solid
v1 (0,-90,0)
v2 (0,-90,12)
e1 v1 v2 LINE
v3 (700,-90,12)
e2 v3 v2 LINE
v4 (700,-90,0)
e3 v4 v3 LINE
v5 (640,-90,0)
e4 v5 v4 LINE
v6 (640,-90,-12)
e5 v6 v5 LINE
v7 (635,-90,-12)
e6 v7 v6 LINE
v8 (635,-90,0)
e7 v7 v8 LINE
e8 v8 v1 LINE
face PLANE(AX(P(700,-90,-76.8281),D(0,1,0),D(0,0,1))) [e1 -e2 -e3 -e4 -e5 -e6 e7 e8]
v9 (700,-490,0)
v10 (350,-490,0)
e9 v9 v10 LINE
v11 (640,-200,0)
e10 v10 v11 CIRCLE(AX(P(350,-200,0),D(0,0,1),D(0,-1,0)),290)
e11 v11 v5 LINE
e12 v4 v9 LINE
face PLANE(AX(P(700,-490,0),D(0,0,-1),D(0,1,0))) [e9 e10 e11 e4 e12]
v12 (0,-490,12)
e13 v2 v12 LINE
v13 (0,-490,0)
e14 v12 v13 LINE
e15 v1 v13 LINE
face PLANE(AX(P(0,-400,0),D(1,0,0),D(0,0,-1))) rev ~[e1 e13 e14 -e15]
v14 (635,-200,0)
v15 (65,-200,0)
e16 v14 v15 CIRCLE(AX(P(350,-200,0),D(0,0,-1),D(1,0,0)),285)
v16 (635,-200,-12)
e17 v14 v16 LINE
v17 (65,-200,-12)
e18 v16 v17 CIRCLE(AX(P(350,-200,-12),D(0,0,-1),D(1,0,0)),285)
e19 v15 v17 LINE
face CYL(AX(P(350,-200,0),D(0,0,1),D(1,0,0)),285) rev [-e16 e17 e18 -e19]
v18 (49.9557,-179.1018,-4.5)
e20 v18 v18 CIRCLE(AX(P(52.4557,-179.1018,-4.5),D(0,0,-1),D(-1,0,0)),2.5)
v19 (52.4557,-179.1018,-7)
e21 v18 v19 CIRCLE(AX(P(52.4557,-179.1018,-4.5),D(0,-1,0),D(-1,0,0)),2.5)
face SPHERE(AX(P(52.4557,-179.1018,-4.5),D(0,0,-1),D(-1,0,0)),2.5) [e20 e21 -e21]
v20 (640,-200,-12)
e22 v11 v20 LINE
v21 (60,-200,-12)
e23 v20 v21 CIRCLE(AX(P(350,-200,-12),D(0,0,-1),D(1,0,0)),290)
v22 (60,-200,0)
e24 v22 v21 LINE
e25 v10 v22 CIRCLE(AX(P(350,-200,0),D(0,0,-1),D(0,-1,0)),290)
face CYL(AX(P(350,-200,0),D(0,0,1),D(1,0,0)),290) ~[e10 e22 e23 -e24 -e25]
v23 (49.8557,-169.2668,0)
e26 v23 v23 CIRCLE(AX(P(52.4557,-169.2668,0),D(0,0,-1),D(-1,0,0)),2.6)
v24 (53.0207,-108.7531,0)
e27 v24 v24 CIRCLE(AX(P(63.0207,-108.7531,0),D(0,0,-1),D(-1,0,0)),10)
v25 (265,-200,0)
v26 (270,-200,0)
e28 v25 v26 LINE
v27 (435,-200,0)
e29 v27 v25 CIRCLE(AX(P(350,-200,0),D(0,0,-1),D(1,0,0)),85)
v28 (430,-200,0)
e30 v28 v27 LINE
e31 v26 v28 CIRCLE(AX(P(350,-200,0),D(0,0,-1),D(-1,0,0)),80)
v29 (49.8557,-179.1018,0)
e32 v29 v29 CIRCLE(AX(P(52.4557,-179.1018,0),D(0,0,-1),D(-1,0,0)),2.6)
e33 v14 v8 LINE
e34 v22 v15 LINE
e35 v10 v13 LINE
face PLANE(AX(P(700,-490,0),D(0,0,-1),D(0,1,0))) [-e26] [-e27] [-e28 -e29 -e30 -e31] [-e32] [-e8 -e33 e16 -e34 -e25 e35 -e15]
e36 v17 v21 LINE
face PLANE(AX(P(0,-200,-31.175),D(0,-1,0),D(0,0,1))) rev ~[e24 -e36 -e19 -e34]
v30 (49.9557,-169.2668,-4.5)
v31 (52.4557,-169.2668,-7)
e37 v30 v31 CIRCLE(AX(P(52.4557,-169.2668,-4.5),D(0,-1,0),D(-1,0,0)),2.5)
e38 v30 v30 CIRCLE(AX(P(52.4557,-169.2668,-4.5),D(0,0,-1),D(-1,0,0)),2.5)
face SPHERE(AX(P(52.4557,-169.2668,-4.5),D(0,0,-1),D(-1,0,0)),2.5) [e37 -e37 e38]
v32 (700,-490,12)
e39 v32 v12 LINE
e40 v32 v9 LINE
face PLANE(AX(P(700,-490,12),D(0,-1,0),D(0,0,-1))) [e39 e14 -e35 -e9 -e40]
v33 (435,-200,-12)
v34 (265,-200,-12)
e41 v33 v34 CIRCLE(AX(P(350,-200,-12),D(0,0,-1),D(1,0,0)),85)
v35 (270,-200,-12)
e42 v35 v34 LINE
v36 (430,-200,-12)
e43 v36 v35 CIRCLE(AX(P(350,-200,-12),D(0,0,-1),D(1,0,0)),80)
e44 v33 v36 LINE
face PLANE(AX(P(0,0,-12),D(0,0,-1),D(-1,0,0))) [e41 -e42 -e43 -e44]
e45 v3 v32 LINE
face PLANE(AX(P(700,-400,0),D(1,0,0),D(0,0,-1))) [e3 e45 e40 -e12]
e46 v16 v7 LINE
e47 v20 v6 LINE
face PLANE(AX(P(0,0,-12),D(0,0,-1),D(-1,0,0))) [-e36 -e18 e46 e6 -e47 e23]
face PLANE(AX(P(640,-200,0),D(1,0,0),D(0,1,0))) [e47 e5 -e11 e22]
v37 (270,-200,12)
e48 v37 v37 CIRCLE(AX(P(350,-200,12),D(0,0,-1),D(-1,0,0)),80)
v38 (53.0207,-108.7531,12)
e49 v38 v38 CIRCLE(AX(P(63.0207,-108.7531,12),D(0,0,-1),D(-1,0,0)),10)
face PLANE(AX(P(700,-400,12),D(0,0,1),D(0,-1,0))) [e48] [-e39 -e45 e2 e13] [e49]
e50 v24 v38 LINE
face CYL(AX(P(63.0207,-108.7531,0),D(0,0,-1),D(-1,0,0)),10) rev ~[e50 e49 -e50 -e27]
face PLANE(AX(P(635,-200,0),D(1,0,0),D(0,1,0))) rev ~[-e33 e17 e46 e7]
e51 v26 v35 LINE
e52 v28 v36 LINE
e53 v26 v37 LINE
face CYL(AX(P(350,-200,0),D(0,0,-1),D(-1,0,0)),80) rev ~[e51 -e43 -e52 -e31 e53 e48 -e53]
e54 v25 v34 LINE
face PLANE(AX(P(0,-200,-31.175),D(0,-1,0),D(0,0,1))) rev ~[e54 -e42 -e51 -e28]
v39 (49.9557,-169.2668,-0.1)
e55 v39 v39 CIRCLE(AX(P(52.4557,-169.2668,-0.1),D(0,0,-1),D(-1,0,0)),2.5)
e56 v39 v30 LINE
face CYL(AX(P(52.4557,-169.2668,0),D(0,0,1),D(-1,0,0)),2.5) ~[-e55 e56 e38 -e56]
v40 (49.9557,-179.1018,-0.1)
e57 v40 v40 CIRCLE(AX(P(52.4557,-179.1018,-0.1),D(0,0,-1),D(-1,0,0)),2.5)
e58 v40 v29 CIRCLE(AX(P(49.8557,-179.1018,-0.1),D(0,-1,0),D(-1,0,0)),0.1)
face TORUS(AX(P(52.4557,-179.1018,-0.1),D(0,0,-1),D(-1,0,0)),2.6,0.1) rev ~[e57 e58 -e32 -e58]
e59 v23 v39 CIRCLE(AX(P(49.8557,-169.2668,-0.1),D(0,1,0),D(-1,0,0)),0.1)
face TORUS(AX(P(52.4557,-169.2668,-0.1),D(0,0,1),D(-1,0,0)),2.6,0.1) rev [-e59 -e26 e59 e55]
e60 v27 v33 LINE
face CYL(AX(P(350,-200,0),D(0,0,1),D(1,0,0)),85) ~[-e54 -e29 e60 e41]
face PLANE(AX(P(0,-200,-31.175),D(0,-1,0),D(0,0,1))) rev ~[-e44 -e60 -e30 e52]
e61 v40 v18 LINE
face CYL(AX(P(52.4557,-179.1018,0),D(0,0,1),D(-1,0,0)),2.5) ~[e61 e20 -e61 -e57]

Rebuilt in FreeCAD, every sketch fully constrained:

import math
import FreeCAD as App
import Part
import Sketcher

V = App.Vector
Q = App.Units.Quantity


def edges_at(feature, points):
    """Names of the edges that pass closest to the given points."""
    edges = feature.Shape.Edges
    near = lambda p: min(range(len(edges)), key=lambda i: edges[i].distToShape(Part.Vertex(*p))[0])
    return sorted({f"Edge{near(p) + 1}" for p in points})


def add_polygon(sketch, points):
    """Adds a closed chain of lines whose ends are joined by coincident constraints."""
    first, n = sketch.GeometryCount, len(points)
    for a, b in zip(points, points[1:] + points[:1]):
        sketch.addGeometry(Part.LineSegment(App.Vector(*a, 0), App.Vector(*b, 0)), False)
    for i in range(n):
        sketch.addConstraint(Sketcher.Constraint("Coincident", first + i, 2, first + (i + 1) % n, 1))

doc = App.newDocument("Part")
body = doc.addObject("PartDesign::Body", "Body")

# Sketch on XY plane
sketch1 = doc.addObject("Sketcher::SketchObject", "Sketch")
body.addObject(sketch1)
sketch1.AttachmentSupport = (doc.XY_Plane, [""])
sketch1.MapMode = "FlatFace"
add_polygon(sketch1, [(700, 0), (0, 0), (0, -400), (700, -400)])  # lines 0-3
sketch1.addConstraint([
    Sketcher.Constraint("Horizontal", 0),
    Sketcher.Constraint("Vertical", 1),
    Sketcher.Constraint("Horizontal", 2),
    Sketcher.Constraint("Vertical", 3),
    Sketcher.Constraint("Coincident", 0, 2, -1, 1),
    Sketcher.Constraint("DistanceX", 0, 2, 0, 1, Q("700 mm")),
    Sketcher.Constraint("DistanceY", 1, 2, 1, 1, Q("400 mm")),
])
pad1 = doc.addObject("PartDesign::Pad", "Pad")
body.addObject(pad1)
pad1.Profile = sketch1
pad1.Length = 12

# Sketch on XY plane
sketch2 = doc.addObject("Sketcher::SketchObject", "Sketch001")
body.addObject(sketch2)
sketch2.AttachmentSupport = (doc.XY_Plane, [""])
sketch2.MapMode = "FlatFace"
sketch2.addGeometry(Part.Circle(V(350, -200, 0), V(0, 0, 1), 80), False)
sketch2.addConstraint([
    Sketcher.Constraint("Diameter", 0, Q("160 mm")),
    Sketcher.Constraint("DistanceX", -1, 1, 0, 3, Q("350 mm")),
    Sketcher.Constraint("DistanceY", 0, 3, -1, 1, Q("200 mm")),
])
pocket1 = doc.addObject("PartDesign::Pocket", "Pocket")
body.addObject(pocket1)
pocket1.Profile = sketch2
pocket1.Length = 12
pocket1.Reversed = True

# Sketch on XY plane
sketch3 = doc.addObject("Sketcher::SketchObject", "Sketch002")
body.addObject(sketch3)
sketch3.AttachmentSupport = (doc.XY_Plane, [""])
sketch3.MapMode = "FlatFace"
sketch3.addGeometry([
    Part.ArcOfCircle(Part.Circle(V(350, -200, 0), V(0, 0, 1), 80), math.radians(180), math.radians(360)),  # 0
    Part.LineSegment(V(430, -200, 0), V(430, 0, 0)),  # 1
    Part.LineSegment(V(430, 0, 0), V(435, 0, 0)),  # 2
    Part.LineSegment(V(435, 0, 0), V(435, -200, 0)),  # 3
    Part.ArcOfCircle(Part.Circle(V(350, -200, 0), V(0, 0, 1), 85), math.radians(180), math.radians(360)),  # 4
    Part.LineSegment(V(265, -200, 0), V(265, 0, 0)),  # 5
    Part.LineSegment(V(265, 0, 0), V(270, 0, 0)),  # 6
    Part.LineSegment(V(270, 0, 0), V(270, -200, 0)),  # 7
    Part.LineSegment(V(635, -200, 0), V(635, 0, 0)),  # 8
    Part.LineSegment(V(635, 0, 0), V(640, 0, 0)),  # 9
    Part.LineSegment(V(640, 0, 0), V(640, -200, 0)),  # 10
    Part.ArcOfCircle(Part.Circle(V(350, -200, 0), V(0, 0, 1), 290), math.radians(180), math.radians(360)),  # 11
    Part.LineSegment(V(60, -200, 0), V(60, 0, 0)),  # 12
    Part.LineSegment(V(60, 0, 0), V(65, 0, 0)),  # 13
    Part.LineSegment(V(65, 0, 0), V(65, -200, 0)),  # 14
    Part.ArcOfCircle(Part.Circle(V(350, -200, 0), V(0, 0, 1), 285), math.radians(180), math.radians(360)),  # 15
], False)
sketch3.addConstraint([
    Sketcher.Constraint("Tangent", 0, 2, 1, 1),
    Sketcher.Constraint("Coincident", 1, 2, 2, 1),
    Sketcher.Constraint("Coincident", 2, 2, 3, 1),
    Sketcher.Constraint("Tangent", 3, 2, 4, 2),
    Sketcher.Constraint("Tangent", 4, 1, 5, 1),
    Sketcher.Constraint("Coincident", 5, 2, 6, 1),
    Sketcher.Constraint("Coincident", 6, 2, 7, 1),
    Sketcher.Constraint("Tangent", 7, 2, 0, 1),
    Sketcher.Constraint("Coincident", 8, 2, 9, 1),
    Sketcher.Constraint("Coincident", 9, 2, 10, 1),
    Sketcher.Constraint("Tangent", 10, 2, 11, 2),
    Sketcher.Constraint("Tangent", 11, 1, 12, 1),
    Sketcher.Constraint("Coincident", 12, 2, 13, 1),
    Sketcher.Constraint("Coincident", 13, 2, 14, 1),
    Sketcher.Constraint("Tangent", 14, 2, 15, 1),
    Sketcher.Constraint("Tangent", 15, 2, 8, 1),
    Sketcher.Constraint("Vertical", 1),
    Sketcher.Constraint("Horizontal", 2),
    Sketcher.Constraint("Vertical", 3),
    Sketcher.Constraint("Vertical", 5),
    Sketcher.Constraint("Horizontal", 6),
    Sketcher.Constraint("Vertical", 7),
    Sketcher.Constraint("Vertical", 8),
    Sketcher.Constraint("Horizontal", 9),
    Sketcher.Constraint("Vertical", 10),
    Sketcher.Constraint("Vertical", 12),
    Sketcher.Constraint("Horizontal", 13),
    Sketcher.Constraint("Vertical", 14),
    Sketcher.Constraint("Coincident", 4, 3, 0, 3),
    Sketcher.Constraint("Coincident", 11, 3, 0, 3),
    Sketcher.Constraint("Coincident", 15, 3, 0, 3),
    Sketcher.Constraint("PointOnObject", 1, 2, -1),
    Sketcher.Constraint("PointOnObject", 5, 2, -1),
    Sketcher.Constraint("PointOnObject", 8, 2, -1),
    Sketcher.Constraint("PointOnObject", 12, 2, -1),
    Sketcher.Constraint("Equal", 6, 9),
    Sketcher.Constraint("DistanceX", 2, 1, 2, 2, Q("5 mm")),
    Sketcher.Constraint("DistanceY", 1, 1, 1, 2, Q("200 mm")),
    Sketcher.Constraint("Radius", 0, Q("80 mm")),
    Sketcher.Constraint("Radius", 11, Q("290 mm")),
    Sketcher.Constraint("DistanceX", -1, 1, 0, 3, Q("350 mm")),
])
pad2 = doc.addObject("PartDesign::Pad", "Pad001")
body.addObject(pad2)
pad2.Profile = sketch3
pad2.Length = 12
pad2.Reversed = True

# Sketch on YZ plane
sketch4 = doc.addObject("Sketcher::SketchObject", "Sketch003")
body.addObject(sketch4)
sketch4.AttachmentSupport = (doc.YZ_Plane, [""])
sketch4.MapMode = "FlatFace"
sketch4.AttachmentOffset = App.Placement(V(0, 0, 700), App.Rotation())
add_polygon(sketch4, [(-490, 0), (-400, 0), (-400, 12), (-490, 12)])  # lines 0-3
sketch4.addConstraint([
    Sketcher.Constraint("Horizontal", 0),
    Sketcher.Constraint("Vertical", 1),
    Sketcher.Constraint("Horizontal", 2),
    Sketcher.Constraint("Vertical", 3),
    Sketcher.Constraint("PointOnObject", 0, 2, -1),
    Sketcher.Constraint("DistanceX", 0, 1, 0, 2, Q("90 mm")),
    Sketcher.Constraint("DistanceY", 1, 1, 1, 2, Q("12 mm")),
    Sketcher.Constraint("DistanceX", 0, 2, -1, 1, Q("400 mm")),
])
pad3 = doc.addObject("PartDesign::Pad", "Pad002")
body.addObject(pad3)
pad3.Profile = sketch4
pad3.Length = 700
pad3.Reversed = True

# Sketch on YZ plane
sketch5 = doc.addObject("Sketcher::SketchObject", "Sketch004")
body.addObject(sketch5)
sketch5.AttachmentSupport = (doc.YZ_Plane, [""])
sketch5.MapMode = "FlatFace"
sketch5.AttachmentOffset = App.Placement(V(0, 0, 700), App.Rotation())
add_polygon(sketch5, [(0, -77), (0, 12), (-90, 12), (-90, -77)])  # lines 0-3
sketch5.addConstraint([
    Sketcher.Constraint("Vertical", 0),
    Sketcher.Constraint("Horizontal", 1),
    Sketcher.Constraint("Vertical", 2),
    Sketcher.Constraint("Horizontal", 3),
    Sketcher.Constraint("PointOnObject", 0, 2, -2),
    Sketcher.Constraint("DistanceX", 1, 2, 1, 1, Q("90 mm")),
    Sketcher.Constraint("DistanceY", -1, 1, 0, 2, Q("12 mm")),
    Sketcher.Constraint("DistanceY", 0, 1, 0, 2, Q("88.828 mm")),
])
pocket2 = doc.addObject("PartDesign::Pocket", "Pocket001")
body.addObject(pocket2)
pocket2.Profile = sketch5
pocket2.Length = 10000

# Sketch on YZ plane
sketch6 = doc.addObject("Sketcher::SketchObject", "Sketch005")
body.addObject(sketch6)
sketch6.AttachmentSupport = (doc.YZ_Plane, [""])
sketch6.MapMode = "FlatFace"
add_polygon(sketch6, [(-200, -31), (-200, 0), (-90, 0), (-90, -31)])  # lines 0-3
sketch6.addConstraint([
    Sketcher.Constraint("Vertical", 0),
    Sketcher.Constraint("Horizontal", 1),
    Sketcher.Constraint("Vertical", 2),
    Sketcher.Constraint("Horizontal", 3),
    Sketcher.Constraint("PointOnObject", 0, 2, -1),
    Sketcher.Constraint("DistanceX", 1, 1, 1, 2, Q("110 mm")),
    Sketcher.Constraint("DistanceX", 0, 2, -1, 1, Q("200 mm")),
    Sketcher.Constraint("DistanceY", 0, 1, 0, 2, Q("31.175 mm")),
])
pocket3 = doc.addObject("PartDesign::Pocket", "Pocket002")
body.addObject(pocket3)
pocket3.Profile = sketch6
pocket3.Length = 500
pocket3.Reversed = True

# Sketch on XY plane
sketch7 = doc.addObject("Sketcher::SketchObject", "Sketch006")
body.addObject(sketch7)
sketch7.AttachmentSupport = (doc.XY_Plane, [""])
sketch7.MapMode = "FlatFace"
sketch7.addGeometry([
    Part.Circle(V(52.5, -179.1, 0), V(0, 0, 1), 2.5),
    Part.Circle(V(52.5, -169.3, 0), V(0, 0, 1), 2.5),
], False)
sketch7.addConstraint([
    Sketcher.Constraint("Equal", 0, 1),
    Sketcher.Constraint("Vertical", 0, 3, 1, 3),
    Sketcher.Constraint("Diameter", 0, Q("5 mm")),
    Sketcher.Constraint("DistanceY", 0, 3, 1, 3, Q("9.835 mm")),
    Sketcher.Constraint("DistanceX", -1, 1, 0, 3, Q("52.4557 mm")),
    Sketcher.Constraint("DistanceY", 0, 3, -1, 1, Q("179.1018 mm")),
])
pad4 = doc.addObject("PartDesign::Pad", "Pad003")
body.addObject(pad4)
pad4.Profile = sketch7
pad4.Length = 7
pad4.Reversed = True
doc.recompute()

fillet = doc.addObject("PartDesign::Fillet", "Fillet")
body.addObject(fillet)
fillet.Base = (pad4, edges_at(pad4, [(54.956, -169.267, -7), (54.956, -179.102, -7)]))
fillet.Radius = 2.5
doc.recompute()

fillet2 = doc.addObject("PartDesign::Fillet", "Fillet001")
body.addObject(fillet2)
fillet2.Base = (fillet, edges_at(fillet, [(54.956, -169.267, 0), (54.956, -179.102, 0)]))
fillet2.Radius = 0.1

# Sketch on XY plane
sketch8 = doc.addObject("Sketcher::SketchObject", "Sketch007")
body.addObject(sketch8)
sketch8.AttachmentSupport = (doc.XY_Plane, [""])
sketch8.MapMode = "FlatFace"
sketch8.addGeometry(Part.Circle(V(63, -109, 0), V(0, 0, 1), 10), False)
sketch8.addConstraint([
    Sketcher.Constraint("Diameter", 0, Q("20 mm")),
    Sketcher.Constraint("DistanceY", 0, 3, -1, 1, Q("108.753 mm")),
    Sketcher.Constraint("DistanceX", -1, 1, 0, 3, Q("63.0207 mm")),
])
pocket4 = doc.addObject("PartDesign::Pocket", "Pocket003")
body.addObject(pocket4)
pocket4.Profile = sketch8
pocket4.Length = 20
pocket4.Reversed = True

doc.recompute()
